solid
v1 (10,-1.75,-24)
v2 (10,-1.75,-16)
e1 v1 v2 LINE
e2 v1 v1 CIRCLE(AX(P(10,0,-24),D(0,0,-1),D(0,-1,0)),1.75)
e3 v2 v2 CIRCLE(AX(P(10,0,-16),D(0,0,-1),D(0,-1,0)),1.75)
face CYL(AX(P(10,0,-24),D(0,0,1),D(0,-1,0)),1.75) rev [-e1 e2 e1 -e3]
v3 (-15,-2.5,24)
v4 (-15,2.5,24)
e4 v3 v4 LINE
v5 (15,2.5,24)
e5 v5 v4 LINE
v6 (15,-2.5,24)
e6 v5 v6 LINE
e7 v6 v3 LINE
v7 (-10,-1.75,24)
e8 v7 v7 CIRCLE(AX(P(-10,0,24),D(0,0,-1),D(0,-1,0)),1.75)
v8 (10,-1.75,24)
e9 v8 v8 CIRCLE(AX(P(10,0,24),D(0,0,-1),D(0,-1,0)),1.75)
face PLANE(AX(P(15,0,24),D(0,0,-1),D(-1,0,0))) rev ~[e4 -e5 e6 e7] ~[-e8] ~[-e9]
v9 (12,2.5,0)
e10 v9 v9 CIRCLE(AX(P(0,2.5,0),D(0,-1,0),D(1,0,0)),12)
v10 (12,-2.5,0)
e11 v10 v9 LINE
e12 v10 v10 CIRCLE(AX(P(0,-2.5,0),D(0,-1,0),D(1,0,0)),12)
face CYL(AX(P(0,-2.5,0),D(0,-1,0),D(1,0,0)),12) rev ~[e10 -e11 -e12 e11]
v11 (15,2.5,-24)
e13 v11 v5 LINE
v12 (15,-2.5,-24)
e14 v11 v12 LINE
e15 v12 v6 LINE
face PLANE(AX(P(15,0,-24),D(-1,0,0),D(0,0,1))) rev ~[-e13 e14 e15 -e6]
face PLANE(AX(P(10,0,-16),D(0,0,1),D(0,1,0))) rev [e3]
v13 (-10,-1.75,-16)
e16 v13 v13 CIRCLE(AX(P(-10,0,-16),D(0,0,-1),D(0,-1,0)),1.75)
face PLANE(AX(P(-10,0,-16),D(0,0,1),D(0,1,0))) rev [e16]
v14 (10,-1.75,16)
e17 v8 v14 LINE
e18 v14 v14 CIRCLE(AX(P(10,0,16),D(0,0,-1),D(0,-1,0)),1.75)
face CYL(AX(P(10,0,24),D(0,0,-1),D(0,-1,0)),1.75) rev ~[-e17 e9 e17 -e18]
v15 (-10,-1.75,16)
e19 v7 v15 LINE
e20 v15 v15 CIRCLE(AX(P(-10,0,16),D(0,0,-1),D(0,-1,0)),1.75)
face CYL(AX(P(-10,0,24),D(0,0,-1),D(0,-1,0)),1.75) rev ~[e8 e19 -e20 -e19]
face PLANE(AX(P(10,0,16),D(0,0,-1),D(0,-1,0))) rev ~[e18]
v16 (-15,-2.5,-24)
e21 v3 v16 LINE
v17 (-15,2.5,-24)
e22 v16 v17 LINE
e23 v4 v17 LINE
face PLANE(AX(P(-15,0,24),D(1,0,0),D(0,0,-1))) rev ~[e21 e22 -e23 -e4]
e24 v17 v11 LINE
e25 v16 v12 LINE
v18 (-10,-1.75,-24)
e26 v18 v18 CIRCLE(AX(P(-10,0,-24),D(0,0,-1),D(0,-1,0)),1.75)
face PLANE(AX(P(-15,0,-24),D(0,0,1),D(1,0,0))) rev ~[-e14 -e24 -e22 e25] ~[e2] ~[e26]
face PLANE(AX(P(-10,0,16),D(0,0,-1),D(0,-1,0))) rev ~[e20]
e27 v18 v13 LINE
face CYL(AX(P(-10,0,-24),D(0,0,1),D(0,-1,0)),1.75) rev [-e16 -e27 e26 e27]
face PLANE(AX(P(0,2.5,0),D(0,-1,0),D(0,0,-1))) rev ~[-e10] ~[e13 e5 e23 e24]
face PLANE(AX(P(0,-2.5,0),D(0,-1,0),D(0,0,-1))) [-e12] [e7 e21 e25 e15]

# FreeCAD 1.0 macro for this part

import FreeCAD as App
import Part
import Sketcher


def add_polygon(sketch, points):
    """Adds a closed chain of lines whose ends are joined by coincident constraints."""
    first, n = sketch.GeometryCount, len(points)
    for a, b in zip(points, points[1:] + points[:1]):
        sketch.addGeometry(Part.LineSegment(App.Vector(*a, 0), App.Vector(*b, 0)), False)
    for i in range(n):
        sketch.addConstraint(Sketcher.Constraint("Coincident", first + i, 2, first + (i + 1) % n, 1))

doc = App.newDocument("Part")
body = doc.addObject("PartDesign::Body", "Body")

sketch1 = body.newObject("Sketcher::SketchObject", "Sketch")
sketch1.AttachmentSupport = (doc.getObject("XZ_Plane"), [""])
sketch1.MapMode = "FlatFace"
add_polygon(sketch1, [(-15, 24), (-15, -24), (15, -24), (15, 24)])
sketch1.addConstraint([
    Sketcher.Constraint("Vertical", 0),
    Sketcher.Constraint("Horizontal", 1),
    Sketcher.Constraint("Vertical", 2),
    Sketcher.Constraint("Horizontal", 3),
    Sketcher.Constraint("Symmetric", 0, 2, 2, 2, -1, 1),
    Sketcher.Constraint("DistanceX", 0, 2, -1, 1, 15.0),
    Sketcher.Constraint("DistanceY", 0, 2, 0, 1, 48.0),
])
pad1 = body.newObject("PartDesign::Pad", "Pad")
pad1.Profile = sketch1
pad1.Length = 5
pad1.Midplane = True

sketch2 = body.newObject("Sketcher::SketchObject", "Sketch001")
sketch2.AttachmentSupport = (doc.getObject("XZ_Plane"), [""])
sketch2.MapMode = "FlatFace"
sketch2.AttachmentOffset = App.Placement(App.Vector(0, 0, 2.5), App.Rotation())
sketch2.addGeometry(Part.Circle(App.Vector(0, 0, 0), App.Vector(0, 0, 1), 12), False)
sketch2.addConstraint([
    Sketcher.Constraint("Coincident", 0, 3, -1, 1),
    Sketcher.Constraint("Diameter", 0, 24.0),
])
pocket1 = body.newObject("PartDesign::Pocket", "Pocket")
pocket1.Profile = sketch2
pocket1.Length = 310

sketch3 = body.newObject("Sketcher::SketchObject", "Sketch002")
sketch3.AttachmentSupport = (doc.getObject("XY_Plane"), [""])
sketch3.MapMode = "FlatFace"
sketch3.AttachmentOffset = App.Placement(App.Vector(0, 0, 24), App.Rotation())
sketch3.addGeometry(Part.Circle(App.Vector(-10, 0, 0), App.Vector(0, 0, 1), 1.8), False)
sketch3.addConstraint([
    Sketcher.Constraint("PointOnObject", 0, 3, -1),
    Sketcher.Constraint("Diameter", 0, 3.5),
    Sketcher.Constraint("DistanceX", 0, 3, -1, 1, 10.0),
])
doc.recompute()
hole = body.newObject("PartDesign::Hole", "Hole")
hole.Profile = sketch3
hole.ThreadType = "None"
hole.Diameter = 3.5
hole.DepthType = "Dimension"
hole.Depth = 8
hole.DrillPoint = "Flat"

sketch4 = body.newObject("Sketcher::SketchObject", "Sketch003")
sketch4.AttachmentSupport = (doc.getObject("XY_Plane"), [""])
sketch4.MapMode = "FlatFace"
sketch4.AttachmentOffset = App.Placement(App.Vector(0, 0, 24), App.Rotation())
sketch4.addGeometry(Part.Circle(App.Vector(10, 0, 0), App.Vector(0, 0, 1), 1.8), False)
sketch4.addConstraint([
    Sketcher.Constraint("PointOnObject", 0, 3, -1),
    Sketcher.Constraint("Diameter", 0, 3.5),
    Sketcher.Constraint("DistanceX", -1, 1, 0, 3, 10.0),
])
doc.recompute()
hole2 = body.newObject("PartDesign::Hole", "Hole001")
hole2.Profile = sketch4
hole2.ThreadType = "None"
hole2.Diameter = 3.5
hole2.DepthType = "Dimension"
hole2.Depth = 8
hole2.DrillPoint = "Flat"
doc.recompute()

mirrored = body.newObject("PartDesign::Mirrored", "Mirrored")
mirrored.Originals = [hole, hole2]
mirrored.MirrorPlane = (doc.getObject("XY_Plane"), [""])
body.Tip = mirrored

doc.recompute()
